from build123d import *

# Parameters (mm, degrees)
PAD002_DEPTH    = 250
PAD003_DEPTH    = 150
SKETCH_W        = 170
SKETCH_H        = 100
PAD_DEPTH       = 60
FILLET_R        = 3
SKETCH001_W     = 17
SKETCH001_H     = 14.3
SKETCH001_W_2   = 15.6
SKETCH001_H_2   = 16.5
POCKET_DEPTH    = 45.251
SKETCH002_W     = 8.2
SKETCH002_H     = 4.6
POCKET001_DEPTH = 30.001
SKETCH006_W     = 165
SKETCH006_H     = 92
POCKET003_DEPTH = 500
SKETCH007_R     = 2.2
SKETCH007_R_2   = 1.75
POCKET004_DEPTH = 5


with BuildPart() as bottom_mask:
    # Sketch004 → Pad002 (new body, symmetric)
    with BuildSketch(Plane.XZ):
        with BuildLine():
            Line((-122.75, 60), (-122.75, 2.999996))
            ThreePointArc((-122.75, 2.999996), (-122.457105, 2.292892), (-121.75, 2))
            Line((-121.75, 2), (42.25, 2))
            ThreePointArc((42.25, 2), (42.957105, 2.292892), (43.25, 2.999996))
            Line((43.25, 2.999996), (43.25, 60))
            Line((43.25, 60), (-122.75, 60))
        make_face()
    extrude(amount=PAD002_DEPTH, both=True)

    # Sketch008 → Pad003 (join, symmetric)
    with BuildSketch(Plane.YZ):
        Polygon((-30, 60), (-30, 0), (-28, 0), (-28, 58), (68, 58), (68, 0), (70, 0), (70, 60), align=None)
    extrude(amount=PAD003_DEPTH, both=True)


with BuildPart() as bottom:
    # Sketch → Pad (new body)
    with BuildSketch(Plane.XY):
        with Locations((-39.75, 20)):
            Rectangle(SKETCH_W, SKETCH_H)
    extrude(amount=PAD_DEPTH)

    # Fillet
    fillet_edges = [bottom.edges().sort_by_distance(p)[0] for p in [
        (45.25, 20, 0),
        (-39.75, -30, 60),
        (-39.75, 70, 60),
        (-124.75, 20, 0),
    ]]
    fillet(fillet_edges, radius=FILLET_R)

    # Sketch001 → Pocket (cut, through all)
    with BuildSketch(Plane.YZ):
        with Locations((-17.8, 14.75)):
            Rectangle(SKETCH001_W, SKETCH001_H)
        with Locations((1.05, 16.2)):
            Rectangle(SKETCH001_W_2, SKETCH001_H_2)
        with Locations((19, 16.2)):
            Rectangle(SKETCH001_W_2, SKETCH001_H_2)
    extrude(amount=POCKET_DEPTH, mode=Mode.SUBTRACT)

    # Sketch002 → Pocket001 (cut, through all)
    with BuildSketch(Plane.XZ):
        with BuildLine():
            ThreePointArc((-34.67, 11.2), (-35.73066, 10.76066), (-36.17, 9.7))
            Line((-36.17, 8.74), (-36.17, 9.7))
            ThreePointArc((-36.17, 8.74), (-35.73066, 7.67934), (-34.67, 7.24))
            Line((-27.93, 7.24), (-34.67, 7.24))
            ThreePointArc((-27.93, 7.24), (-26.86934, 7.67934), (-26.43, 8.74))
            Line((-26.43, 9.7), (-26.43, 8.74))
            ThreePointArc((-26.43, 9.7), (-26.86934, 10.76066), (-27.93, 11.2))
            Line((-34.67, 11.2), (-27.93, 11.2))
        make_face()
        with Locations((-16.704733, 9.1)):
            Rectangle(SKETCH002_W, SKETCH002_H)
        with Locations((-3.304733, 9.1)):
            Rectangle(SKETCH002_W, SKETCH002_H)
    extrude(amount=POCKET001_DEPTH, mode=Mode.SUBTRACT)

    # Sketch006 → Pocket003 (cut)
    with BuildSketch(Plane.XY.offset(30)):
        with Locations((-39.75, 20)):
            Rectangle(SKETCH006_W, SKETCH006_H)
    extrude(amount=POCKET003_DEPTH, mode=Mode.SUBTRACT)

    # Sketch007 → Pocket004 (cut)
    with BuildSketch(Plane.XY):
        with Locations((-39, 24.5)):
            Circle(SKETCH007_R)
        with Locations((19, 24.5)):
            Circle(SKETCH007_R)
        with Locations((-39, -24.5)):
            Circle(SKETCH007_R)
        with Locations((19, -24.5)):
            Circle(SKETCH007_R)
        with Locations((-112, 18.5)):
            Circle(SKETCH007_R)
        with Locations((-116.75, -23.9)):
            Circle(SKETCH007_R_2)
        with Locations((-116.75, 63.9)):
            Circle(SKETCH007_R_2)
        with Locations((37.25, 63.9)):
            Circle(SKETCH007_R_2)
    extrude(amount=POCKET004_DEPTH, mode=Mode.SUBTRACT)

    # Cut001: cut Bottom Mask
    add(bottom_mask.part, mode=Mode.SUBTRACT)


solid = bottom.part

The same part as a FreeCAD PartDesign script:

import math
import FreeCAD as App
import Part
import Sketcher
Q = App.Units.Quantity


def edges_at(feature, points):
    """Names of the edges that pass closest to the given points."""
    edges = feature.Shape.Edges
    near = lambda p: min(range(len(edges)), key=lambda i: edges[i].distToShape(Part.Vertex(*p))[0])
    return sorted({f"Edge{near(p) + 1}" for p in points})

doc = App.newDocument("Part")
body = doc.addObject("PartDesign::Body", "Body")

sketch1 = doc.addObject("Sketcher::SketchObject", "Sketch")
body.addObject(sketch1)
sketch1.AttachmentSupport = (doc.XZ_Plane, [""])
sketch1.MapMode = "FlatFace"
sketch1.addGeometry(Part.LineSegment(App.Vector(-122.8, 60, 0), App.Vector(-122.8, 3, 0)), False)
sketch1.addGeometry(Part.ArcOfCircle(Part.Circle(App.Vector(-121.7, 3, 0), App.Vector(0, 0, 1), 1), math.radians(-180), math.radians(-90)), False)
sketch1.addGeometry(Part.LineSegment(App.Vector(-121.8, 2, 0), App.Vector(42.2, 2, 0)), False)
sketch1.addGeometry(Part.ArcOfCircle(Part.Circle(App.Vector(42.2, 3, 0), App.Vector(0, 0, 1), 1), math.radians(-90), math.radians(0)), False)
sketch1.addGeometry(Part.LineSegment(App.Vector(43.2, 3, 0), App.Vector(43.2, 60, 0)), False)
sketch1.addGeometry(Part.LineSegment(App.Vector(43.2, 60, 0), App.Vector(-122.8, 60, 0)), False)
sketch1.addConstraint(Sketcher.Constraint("Coincident", 0, 2, 1, 1))
sketch1.addConstraint(Sketcher.Constraint("Tangent", 1, 2, 2, 1))
sketch1.addConstraint(Sketcher.Constraint("Tangent", 2, 2, 3, 1))
sketch1.addConstraint(Sketcher.Constraint("Coincident", 3, 2, 4, 1))
sketch1.addConstraint(Sketcher.Constraint("Coincident", 4, 2, 5, 1))
sketch1.addConstraint(Sketcher.Constraint("Coincident", 5, 2, 0, 1))
sketch1.addConstraint(Sketcher.Constraint("Vertical", 0))
sketch1.addConstraint(Sketcher.Constraint("Horizontal", 2))
sketch1.addConstraint(Sketcher.Constraint("Vertical", 4))
sketch1.addConstraint(Sketcher.Constraint("Horizontal", 5))
sketch1.addConstraint(Sketcher.Constraint("Equal", 1, 3))
sketch1.addConstraint(Sketcher.Constraint("Horizontal", 0, 2, 3, 2))
sketch1.addConstraint(Sketcher.Constraint("Radius", 1, Q("1.000001 mm")))
sketch1.addConstraint(Sketcher.Constraint("DistanceX", 2, 1, 2, 2, Q("164 mm")))
sketch1.addConstraint(Sketcher.Constraint("DistanceY", -1, 1, 1, 3, Q("3.000001 mm")))
sketch1.addConstraint(Sketcher.Constraint("DistanceY", -1, 1, 4, 2, Q("60 mm")))
sketch1.addConstraint(Sketcher.Constraint("DistanceX", 1, 3, -1, 1, Q("121.749999 mm")))
sketch1.addConstraint(Sketcher.Constraint("DistanceY", 0, 2, 0, 1, Q("57.000004 mm")))
pad1 = doc.addObject("PartDesign::Pad", "Pad")
body.addObject(pad1)
pad1.Profile = sketch1
pad1.Length = 500
pad1.Midplane = True

sketch2 = doc.addObject("Sketcher::SketchObject", "Sketch001")
body.addObject(sketch2)
sketch2.AttachmentSupport = (doc.YZ_Plane, [""])
sketch2.MapMode = "FlatFace"
sketch2.addGeometry(Part.LineSegment(App.Vector(-30, 60, 0), App.Vector(-30, 0, 0)), False)
sketch2.addGeometry(Part.LineSegment(App.Vector(-30, 0, 0), App.Vector(-28, 0, 0)), False)
sketch2.addGeometry(Part.LineSegment(App.Vector(-28, 0, 0), App.Vector(-28, 58, 0)), False)
sketch2.addGeometry(Part.LineSegment(App.Vector(-28, 58, 0), App.Vector(68, 58, 0)), False)
sketch2.addGeometry(Part.LineSegment(App.Vector(68, 58, 0), App.Vector(68, 0, 0)), False)
sketch2.addGeometry(Part.LineSegment(App.Vector(68, 0, 0), App.Vector(70, 0, 0)), False)
sketch2.addGeometry(Part.LineSegment(App.Vector(70, 0, 0), App.Vector(70, 60, 0)), False)
sketch2.addGeometry(Part.LineSegment(App.Vector(70, 60, 0), App.Vector(-30, 60, 0)), False)
sketch2.addConstraint(Sketcher.Constraint("Coincident", 0, 2, 1, 1))
sketch2.addConstraint(Sketcher.Constraint("Coincident", 1, 2, 2, 1))
sketch2.addConstraint(Sketcher.Constraint("Coincident", 2, 2, 3, 1))
sketch2.addConstraint(Sketcher.Constraint("Coincident", 3, 2, 4, 1))
sketch2.addConstraint(Sketcher.Constraint("Coincident", 4, 2, 5, 1))
sketch2.addConstraint(Sketcher.Constraint("Coincident", 5, 2, 6, 1))
sketch2.addConstraint(Sketcher.Constraint("Coincident", 6, 2, 7, 1))
sketch2.addConstraint(Sketcher.Constraint("Coincident", 7, 2, 0, 1))
sketch2.addConstraint(Sketcher.Constraint("Vertical", 0))
sketch2.addConstraint(Sketcher.Constraint("Horizontal", 1))
sketch2.addConstraint(Sketcher.Constraint("Vertical", 2))
sketch2.addConstraint(Sketcher.Constraint("Horizontal", 3))
sketch2.addConstraint(Sketcher.Constraint("Vertical", 4))
sketch2.addConstraint(Sketcher.Constraint("Horizontal", 5))
sketch2.addConstraint(Sketcher.Constraint("Vertical", 6))
sketch2.addConstraint(Sketcher.Constraint("Horizontal", 7))
sketch2.addConstraint(Sketcher.Constraint("PointOnObject", 0, 2, -1))
sketch2.addConstraint(Sketcher.Constraint("PointOnObject", 4, 2, -1))
sketch2.addConstraint(Sketcher.Constraint("Equal", 1, 5))
sketch2.addConstraint(Sketcher.Constraint("DistanceX", 1, 1, 1, 2, Q("2 mm")))
sketch2.addConstraint(Sketcher.Constraint("DistanceX", 3, 1, 3, 2, Q("96 mm")))
sketch2.addConstraint(Sketcher.Constraint("DistanceY", 0, 2, 0, 1, Q("60 mm")))
sketch2.addConstraint(Sketcher.Constraint("DistanceY", 2, 1, 2, 2, Q("58 mm")))
sketch2.addConstraint(Sketcher.Constraint("DistanceX", 0, 2, -1, 1, Q("30 mm")))
pad2 = doc.addObject("PartDesign::Pad", "Pad001")
body.addObject(pad2)
pad2.Profile = sketch2
pad2.Length = 300
pad2.Midplane = True
body2 = doc.addObject("PartDesign::Body", "Body001")

sketch3 = doc.addObject("Sketcher::SketchObject", "Sketch002")
body2.addObject(sketch3)
sketch3.AttachmentSupport = (doc.getObject("XY_Plane001"), [""])
sketch3.MapMode = "FlatFace"
sketch3.addGeometry(Part.LineSegment(App.Vector(-125, 70, 0), App.Vector(-125, -30, 0)), False)
sketch3.addGeometry(Part.LineSegment(App.Vector(-125, -30, 0), App.Vector(45, -30, 0)), False)
sketch3.addGeometry(Part.LineSegment(App.Vector(45, -30, 0), App.Vector(45, 70, 0)), False)
sketch3.addGeometry(Part.LineSegment(App.Vector(45, 70, 0), App.Vector(-125, 70, 0)), False)
sketch3.addConstraint(Sketcher.Constraint("Coincident", 0, 2, 1, 1))
sketch3.addConstraint(Sketcher.Constraint("Coincident", 1, 2, 2, 1))
sketch3.addConstraint(Sketcher.Constraint("Coincident", 2, 2, 3, 1))
sketch3.addConstraint(Sketcher.Constraint("Coincident", 3, 2, 0, 1))
sketch3.addConstraint(Sketcher.Constraint("Vertical", 0))
sketch3.addConstraint(Sketcher.Constraint("Horizontal", 1))
sketch3.addConstraint(Sketcher.Constraint("Vertical", 2))
sketch3.addConstraint(Sketcher.Constraint("Horizontal", 3))
sketch3.addConstraint(Sketcher.Constraint("DistanceX", 1, 1, 1, 2, Q("170 mm")))
sketch3.addConstraint(Sketcher.Constraint("DistanceY", 0, 2, 0, 1, Q("100 mm")))
sketch3.addConstraint(Sketcher.Constraint("DistanceY", 0, 2, -1, 1, Q("30 mm")))
sketch3.addConstraint(Sketcher.Constraint("DistanceX", 0, 2, -1, 1, Q("124.75 mm")))
pad3 = doc.addObject("PartDesign::Pad", "Pad002")
body2.addObject(pad3)
pad3.Profile = sketch3
pad3.Length = 60
doc.recompute()

fillet = doc.addObject("PartDesign::Fillet", "Fillet")
body2.addObject(fillet)
fillet.Base = (pad3, edges_at(pad3, [
    (45.25, 20, 0),
    (-39.75, -30, 60),
    (-39.75, 70, 60),
    (-124.75, 20, 0),
]))
fillet.Radius = 3

sketch4 = doc.addObject("Sketcher::SketchObject", "Sketch003")
body2.addObject(sketch4)
sketch4.AttachmentSupport = (doc.getObject("YZ_Plane001"), [""])
sketch4.MapMode = "FlatFace"
sketch4.addGeometry(Part.LineSegment(App.Vector(-26, 22, 0), App.Vector(-26, 8, 0)), False)
sketch4.addGeometry(Part.LineSegment(App.Vector(-26, 8, 0), App.Vector(-9, 8, 0)), False)
sketch4.addGeometry(Part.LineSegment(App.Vector(-9, 8, 0), App.Vector(-9, 22, 0)), False)
sketch4.addGeometry(Part.LineSegment(App.Vector(-9, 22, 0), App.Vector(-26, 22, 0)), False)
sketch4.addGeometry(Part.LineSegment(App.Vector(-7, 24, 0), App.Vector(-7, 8, 0)), False)
sketch4.addGeometry(Part.LineSegment(App.Vector(-7, 8, 0), App.Vector(9, 8, 0)), False)
sketch4.addGeometry(Part.LineSegment(App.Vector(9, 8, 0), App.Vector(9, 24, 0)), False)
sketch4.addGeometry(Part.LineSegment(App.Vector(9, 24, 0), App.Vector(-7, 24, 0)), False)
sketch4.addGeometry(Part.LineSegment(App.Vector(11, 24, 0), App.Vector(11, 8, 0)), False)
sketch4.addGeometry(Part.LineSegment(App.Vector(11, 8, 0), App.Vector(27, 8, 0)), False)
sketch4.addGeometry(Part.LineSegment(App.Vector(27, 8, 0), App.Vector(27, 24, 0)), False)
sketch4.addGeometry(Part.LineSegment(App.Vector(27, 24, 0), App.Vector(11, 24, 0)), False)
sketch4.addConstraint(Sketcher.Constraint("Coincident", 0, 2, 1, 1))
sketch4.addConstraint(Sketcher.Constraint("Coincident", 1, 2, 2, 1))
sketch4.addConstraint(Sketcher.Constraint("Coincident", 2, 2, 3, 1))
sketch4.addConstraint(Sketcher.Constraint("Coincident", 3, 2, 0, 1))
sketch4.addConstraint(Sketcher.Constraint("Coincident", 4, 2, 5, 1))
sketch4.addConstraint(Sketcher.Constraint("Coincident", 5, 2, 6, 1))
sketch4.addConstraint(Sketcher.Constraint("Coincident", 6, 2, 7, 1))
sketch4.addConstraint(Sketcher.Constraint("Coincident", 7, 2, 4, 1))
sketch4.addConstraint(Sketcher.Constraint("Coincident", 8, 2, 9, 1))
sketch4.addConstraint(Sketcher.Constraint("Coincident", 9, 2, 10, 1))
sketch4.addConstraint(Sketcher.Constraint("Coincident", 10, 2, 11, 1))
sketch4.addConstraint(Sketcher.Constraint("Coincident", 11, 2, 8, 1))
sketch4.addConstraint(Sketcher.Constraint("Vertical", 0))
sketch4.addConstraint(Sketcher.Constraint("Horizontal", 1))
sketch4.addConstraint(Sketcher.Constraint("Vertical", 2))
sketch4.addConstraint(Sketcher.Constraint("Horizontal", 3))
sketch4.addConstraint(Sketcher.Constraint("Vertical", 4))
sketch4.addConstraint(Sketcher.Constraint("Horizontal", 5))
sketch4.addConstraint(Sketcher.Constraint("Vertical", 6))
sketch4.addConstraint(Sketcher.Constraint("Horizontal", 7))
sketch4.addConstraint(Sketcher.Constraint("Vertical", 8))
sketch4.addConstraint(Sketcher.Constraint("Horizontal", 9))
sketch4.addConstraint(Sketcher.Constraint("Vertical", 10))
sketch4.addConstraint(Sketcher.Constraint("Horizontal", 11))
sketch4.addConstraint(Sketcher.Constraint("Horizontal", 5, 2, 8, 2))
sketch4.addConstraint(Sketcher.Constraint("Horizontal", 7, 2, 10, 2))
sketch4.addConstraint(Sketcher.Constraint("Equal", 7, 9))
sketch4.addConstraint(Sketcher.Constraint("DistanceX", 1, 1, 1, 2, Q("17 mm")))
sketch4.addConstraint(Sketcher.Constraint("DistanceX", 5, 1, 5, 2, Q("15.6 mm")))
sketch4.addConstraint(Sketcher.Constraint("DistanceY", 0, 2, 0, 1, Q("14.3 mm")))
sketch4.addConstraint(Sketcher.Constraint("DistanceY", 4, 2, 4, 1, Q("16.5 mm")))
sketch4.addConstraint(Sketcher.Constraint("DistanceX", 0, 2, -1, 1, Q("26.3 mm")))
sketch4.addConstraint(Sketcher.Constraint("DistanceY", -1, 1, 0, 2, Q("7.6 mm")))
sketch4.addConstraint(Sketcher.Constraint("DistanceX", -1, 1, 8, 2, Q("11.2 mm")))
sketch4.addConstraint(Sketcher.Constraint("DistanceX", 4, 2, -1, 1, Q("6.75 mm")))
sketch4.addConstraint(Sketcher.Constraint("DistanceY", -1, 1, 4, 2, Q("7.95 mm")))
pocket1 = doc.addObject("PartDesign::Pocket", "Pocket")
body2.addObject(pocket1)
pocket1.Profile = sketch4
pocket1.Type = "ThroughAll"
pocket1.Reversed = True

sketch5 = doc.addObject("Sketcher::SketchObject", "Sketch004")
body2.addObject(sketch5)
sketch5.AttachmentSupport = (doc.getObject("XZ_Plane001"), [""])
sketch5.MapMode = "FlatFace"
sketch5.addGeometry(Part.ArcOfCircle(Part.Circle(App.Vector(-34.7, 9.7, 0), App.Vector(0, 0, 1), 1.5), math.radians(90), math.radians(180)), False)
sketch5.addGeometry(Part.LineSegment(App.Vector(-36.2, 9.7, 0), App.Vector(-36.2, 8.7, 0)), False)
sketch5.addGeometry(Part.ArcOfCircle(Part.Circle(App.Vector(-34.7, 8.7, 0), App.Vector(0, 0, 1), 1.5), math.radians(-180), math.radians(-90)), False)
sketch5.addGeometry(Part.LineSegment(App.Vector(-34.7, 7.2, 0), App.Vector(-27.9, 7.2, 0)), False)
sketch5.addGeometry(Part.ArcOfCircle(Part.Circle(App.Vector(-27.9, 8.7, 0), App.Vector(0, 0, 1), 1.5), math.radians(-90), math.radians(0)), False)
sketch5.addGeometry(Part.LineSegment(App.Vector(-26.4, 8.7, 0), App.Vector(-26.4, 9.7, 0)), False)
sketch5.addGeometry(Part.ArcOfCircle(Part.Circle(App.Vector(-27.9, 9.7, 0), App.Vector(0, 0, 1), 1.5), math.radians(0), math.radians(90)), False)
sketch5.addGeometry(Part.LineSegment(App.Vector(-27.9, 11.2, 0), App.Vector(-34.7, 11.2, 0)), False)
sketch5.addGeometry(Part.LineSegment(App.Vector(-20.8, 11.4, 0), App.Vector(-20.8, 6.8, 0)), False)
sketch5.addGeometry(Part.LineSegment(App.Vector(-20.8, 6.8, 0), App.Vector(-12.6, 6.8, 0)), False)
sketch5.addGeometry(Part.LineSegment(App.Vector(-12.6, 6.8, 0), App.Vector(-12.6, 11.4, 0)), False)
sketch5.addGeometry(Part.LineSegment(App.Vector(-12.6, 11.4, 0), App.Vector(-20.8, 11.4, 0)), False)
sketch5.addGeometry(Part.LineSegment(App.Vector(-7.4, 11.4, 0), App.Vector(-7.4, 6.8, 0)), False)
sketch5.addGeometry(Part.LineSegment(App.Vector(-7.4, 6.8, 0), App.Vector(0.8, 6.8, 0)), False)
sketch5.addGeometry(Part.LineSegment(App.Vector(0.8, 6.8, 0), App.Vector(0.8, 11.4, 0)), False)
sketch5.addGeometry(Part.LineSegment(App.Vector(0.8, 11.4, 0), App.Vector(-7.4, 11.4, 0)), False)
sketch5.addConstraint(Sketcher.Constraint("Tangent", 0, 2, 1, 1))
sketch5.addConstraint(Sketcher.Constraint("Tangent", 1, 2, 2, 1))
sketch5.addConstraint(Sketcher.Constraint("Tangent", 2, 2, 3, 1))
sketch5.addConstraint(Sketcher.Constraint("Tangent", 3, 2, 4, 1))
sketch5.addConstraint(Sketcher.Constraint("Tangent", 4, 2, 5, 1))
sketch5.addConstraint(Sketcher.Constraint("Tangent", 5, 2, 6, 1))
sketch5.addConstraint(Sketcher.Constraint("Tangent", 6, 2, 7, 1))
sketch5.addConstraint(Sketcher.Constraint("Tangent", 7, 2, 0, 1))
sketch5.addConstraint(Sketcher.Constraint("Coincident", 8, 2, 9, 1))
sketch5.addConstraint(Sketcher.Constraint("Coincident", 9, 2, 10, 1))
sketch5.addConstraint(Sketcher.Constraint("Coincident", 10, 2, 11, 1))
sketch5.addConstraint(Sketcher.Constraint("Coincident", 11, 2, 8, 1))
sketch5.addConstraint(Sketcher.Constraint("Coincident", 12, 2, 13, 1))
sketch5.addConstraint(Sketcher.Constraint("Coincident", 13, 2, 14, 1))
sketch5.addConstraint(Sketcher.Constraint("Coincident", 14, 2, 15, 1))
sketch5.addConstraint(Sketcher.Constraint("Coincident", 15, 2, 12, 1))
sketch5.addConstraint(Sketcher.Constraint("Vertical", 1))
sketch5.addConstraint(Sketcher.Constraint("Horizontal", 3))
sketch5.addConstraint(Sketcher.Constraint("Vertical", 5))
sketch5.addConstraint(Sketcher.Constraint("Horizontal", 7))
sketch5.addConstraint(Sketcher.Constraint("Vertical", 8))
sketch5.addConstraint(Sketcher.Constraint("Horizontal", 9))
sketch5.addConstraint(Sketcher.Constraint("Vertical", 10))
sketch5.addConstraint(Sketcher.Constraint("Horizontal", 11))
sketch5.addConstraint(Sketcher.Constraint("Vertical", 12))
sketch5.addConstraint(Sketcher.Constraint("Horizontal", 13))
sketch5.addConstraint(Sketcher.Constraint("Vertical", 14))
sketch5.addConstraint(Sketcher.Constraint("Horizontal", 15))
sketch5.addConstraint(Sketcher.Constraint("Equal", 0, 2))
sketch5.addConstraint(Sketcher.Constraint("Equal", 2, 4))
sketch5.addConstraint(Sketcher.Constraint("Equal", 4, 6))
sketch5.addConstraint(Sketcher.Constraint("Horizontal", 9, 2, 12, 2))
sketch5.addConstraint(Sketcher.Constraint("Horizontal", 11, 2, 14, 2))
sketch5.addConstraint(Sketcher.Constraint("Equal", 11, 13))
sketch5.addConstraint(Sketcher.Constraint("Radius", 0, Q("1.500001 mm")))
sketch5.addConstraint(Sketcher.Constraint("DistanceX", 9, 1, 9, 2, Q("8.2 mm")))
sketch5.addConstraint(Sketcher.Constraint("DistanceY", 8, 2, 8, 1, Q("4.6 mm")))
sketch5.addConstraint(Sketcher.Constraint("DistanceX", 3, 1, 3, 2, Q("6.74 mm")))
sketch5.addConstraint(Sketcher.Constraint("DistanceY", 1, 2, 1, 1, Q("0.96 mm")))
sketch5.addConstraint(Sketcher.Constraint("DistanceY", -1, 1, 0, 3, Q("9.699999 mm")))
sketch5.addConstraint(Sketcher.Constraint("DistanceY", -1, 1, 8, 2, Q("6.8 mm")))
sketch5.addConstraint(Sketcher.Constraint("DistanceX", 9, 2, 12, 2, Q("5.2 mm")))
sketch5.addConstraint(Sketcher.Constraint("DistanceX", 0, 3, -1, 1, Q("34.669999 mm")))
sketch5.addConstraint(Sketcher.Constraint("DistanceX", 8, 2, -1, 1, Q("20.804733 mm")))
pocket2 = doc.addObject("PartDesign::Pocket", "Pocket001")
body2.addObject(pocket2)
pocket2.Profile = sketch5
pocket2.Type = "ThroughAll"
pocket2.Reversed = True

sketch6 = doc.addObject("Sketcher::SketchObject", "Sketch005")
body2.addObject(sketch6)
sketch6.AttachmentSupport = (doc.getObject("XY_Plane001"), [""])
sketch6.MapMode = "FlatFace"
sketch6.AttachmentOffset = App.Placement(App.Vector(0, 0, 30), App.Rotation())
sketch6.addGeometry(Part.LineSegment(App.Vector(-122, 66, 0), App.Vector(-122, -26, 0)), False)
sketch6.addGeometry(Part.LineSegment(App.Vector(-122, -26, 0), App.Vector(43, -26, 0)), False)
sketch6.addGeometry(Part.LineSegment(App.Vector(43, -26, 0), App.Vector(43, 66, 0)), False)
sketch6.addGeometry(Part.LineSegment(App.Vector(43, 66, 0), App.Vector(-122, 66, 0)), False)
sketch6.addConstraint(Sketcher.Constraint("Coincident", 0, 2, 1, 1))
sketch6.addConstraint(Sketcher.Constraint("Coincident", 1, 2, 2, 1))
sketch6.addConstraint(Sketcher.Constraint("Coincident", 2, 2, 3, 1))
sketch6.addConstraint(Sketcher.Constraint("Coincident", 3, 2, 0, 1))
sketch6.addConstraint(Sketcher.Constraint("Vertical", 0))
sketch6.addConstraint(Sketcher.Constraint("Horizontal", 1))
sketch6.addConstraint(Sketcher.Constraint("Vertical", 2))
sketch6.addConstraint(Sketcher.Constraint("Horizontal", 3))
sketch6.addConstraint(Sketcher.Constraint("DistanceX", 1, 1, 1, 2, Q("165 mm")))
sketch6.addConstraint(Sketcher.Constraint("DistanceY", 0, 2, 0, 1, Q("92 mm")))
sketch6.addConstraint(Sketcher.Constraint("DistanceY", 0, 2, -1, 1, Q("26 mm")))
sketch6.addConstraint(Sketcher.Constraint("DistanceX", 0, 2, -1, 1, Q("122.25 mm")))
pocket3 = doc.addObject("PartDesign::Pocket", "Pocket002")
body2.addObject(pocket3)
pocket3.Profile = sketch6
pocket3.Length = 500
pocket3.Reversed = True

sketch7 = doc.addObject("Sketcher::SketchObject", "Sketch006")
body2.addObject(sketch7)
sketch7.AttachmentSupport = (doc.getObject("XY_Plane001"), [""])
sketch7.MapMode = "FlatFace"
sketch7.addGeometry(Part.Circle(App.Vector(-39, 24.5, 0), App.Vector(0, 0, 1), 2.2), False)
sketch7.addGeometry(Part.Circle(App.Vector(19, 24.5, 0), App.Vector(0, 0, 1), 2.2), False)
sketch7.addGeometry(Part.Circle(App.Vector(-39, -24.5, 0), App.Vector(0, 0, 1), 2.2), False)
sketch7.addGeometry(Part.Circle(App.Vector(19, -24.5, 0), App.Vector(0, 0, 1), 2.2), False)
sketch7.addGeometry(Part.Circle(App.Vector(-112, 18.5, 0), App.Vector(0, 0, 1), 2.2), False)
sketch7.addGeometry(Part.Circle(App.Vector(-116.8, -23.9, 0), App.Vector(0, 0, 1), 1.8), False)
sketch7.addGeometry(Part.Circle(App.Vector(-116.8, 63.9, 0), App.Vector(0, 0, 1), 1.8), False)
sketch7.addGeometry(Part.Circle(App.Vector(37.2, 63.9, 0), App.Vector(0, 0, 1), 1.8), False)
sketch7.addConstraint(Sketcher.Constraint("Equal", 0, 1))
sketch7.addConstraint(Sketcher.Constraint("Equal", 1, 2))
sketch7.addConstraint(Sketcher.Constraint("Equal", 2, 3))
sketch7.addConstraint(Sketcher.Constraint("Equal", 3, 4))
sketch7.addConstraint(Sketcher.Constraint("Equal", 5, 6))
sketch7.addConstraint(Sketcher.Constraint("Equal", 6, 7))
sketch7.addConstraint(Sketcher.Constraint("Symmetric", 0, 3, 2, 3, -1))
sketch7.addConstraint(Sketcher.Constraint("Symmetric", 1, 3, 3, 3, -1))
sketch7.addConstraint(Sketcher.Constraint("Horizontal", 0, 3, 1, 3))
sketch7.addConstraint(Sketcher.Constraint("Horizontal", 6, 3, 7, 3))
sketch7.addConstraint(Sketcher.Constraint("Vertical", 5, 3, 6, 3))
sketch7.addConstraint(Sketcher.Constraint("Diameter", 0, Q("4.4 mm")))
sketch7.addConstraint(Sketcher.Constraint("Diameter", 5, Q("3.5 mm")))
sketch7.addConstraint(Sketcher.Constraint("DistanceX", 0, 3, -1, 1, Q("39 mm")))
sketch7.addConstraint(Sketcher.Constraint("DistanceX", -1, 1, 1, 3, Q("19 mm")))
sketch7.addConstraint(Sketcher.Constraint("DistanceX", 4, 3, -1, 1, Q("112 mm")))
sketch7.addConstraint(Sketcher.Constraint("DistanceY", 2, 3, 0, 3, Q("49 mm")))
sketch7.addConstraint(Sketcher.Constraint("DistanceY", 4, 3, 0, 3, Q("6 mm")))
sketch7.addConstraint(Sketcher.Constraint("DistanceX", 6, 3, 7, 3, Q("154 mm")))
sketch7.addConstraint(Sketcher.Constraint("DistanceY", 5, 3, -1, 1, Q("23.9 mm")))
sketch7.addConstraint(Sketcher.Constraint("DistanceY", -1, 1, 6, 3, Q("63.9 mm")))
sketch7.addConstraint(Sketcher.Constraint("DistanceX", 5, 3, -1, 1, Q("116.75 mm")))
pocket4 = doc.addObject("PartDesign::Pocket", "Pocket003")
body2.addObject(pocket4)
pocket4.Profile = sketch7
pocket4.Length = 5
pocket4.Reversed = True
doc.recompute()

boolean = doc.addObject("PartDesign::Boolean", "Boolean")
body2.addObject(boolean)
boolean.Type = "Cut"
boolean.addObjects([body])

doc.recompute()
